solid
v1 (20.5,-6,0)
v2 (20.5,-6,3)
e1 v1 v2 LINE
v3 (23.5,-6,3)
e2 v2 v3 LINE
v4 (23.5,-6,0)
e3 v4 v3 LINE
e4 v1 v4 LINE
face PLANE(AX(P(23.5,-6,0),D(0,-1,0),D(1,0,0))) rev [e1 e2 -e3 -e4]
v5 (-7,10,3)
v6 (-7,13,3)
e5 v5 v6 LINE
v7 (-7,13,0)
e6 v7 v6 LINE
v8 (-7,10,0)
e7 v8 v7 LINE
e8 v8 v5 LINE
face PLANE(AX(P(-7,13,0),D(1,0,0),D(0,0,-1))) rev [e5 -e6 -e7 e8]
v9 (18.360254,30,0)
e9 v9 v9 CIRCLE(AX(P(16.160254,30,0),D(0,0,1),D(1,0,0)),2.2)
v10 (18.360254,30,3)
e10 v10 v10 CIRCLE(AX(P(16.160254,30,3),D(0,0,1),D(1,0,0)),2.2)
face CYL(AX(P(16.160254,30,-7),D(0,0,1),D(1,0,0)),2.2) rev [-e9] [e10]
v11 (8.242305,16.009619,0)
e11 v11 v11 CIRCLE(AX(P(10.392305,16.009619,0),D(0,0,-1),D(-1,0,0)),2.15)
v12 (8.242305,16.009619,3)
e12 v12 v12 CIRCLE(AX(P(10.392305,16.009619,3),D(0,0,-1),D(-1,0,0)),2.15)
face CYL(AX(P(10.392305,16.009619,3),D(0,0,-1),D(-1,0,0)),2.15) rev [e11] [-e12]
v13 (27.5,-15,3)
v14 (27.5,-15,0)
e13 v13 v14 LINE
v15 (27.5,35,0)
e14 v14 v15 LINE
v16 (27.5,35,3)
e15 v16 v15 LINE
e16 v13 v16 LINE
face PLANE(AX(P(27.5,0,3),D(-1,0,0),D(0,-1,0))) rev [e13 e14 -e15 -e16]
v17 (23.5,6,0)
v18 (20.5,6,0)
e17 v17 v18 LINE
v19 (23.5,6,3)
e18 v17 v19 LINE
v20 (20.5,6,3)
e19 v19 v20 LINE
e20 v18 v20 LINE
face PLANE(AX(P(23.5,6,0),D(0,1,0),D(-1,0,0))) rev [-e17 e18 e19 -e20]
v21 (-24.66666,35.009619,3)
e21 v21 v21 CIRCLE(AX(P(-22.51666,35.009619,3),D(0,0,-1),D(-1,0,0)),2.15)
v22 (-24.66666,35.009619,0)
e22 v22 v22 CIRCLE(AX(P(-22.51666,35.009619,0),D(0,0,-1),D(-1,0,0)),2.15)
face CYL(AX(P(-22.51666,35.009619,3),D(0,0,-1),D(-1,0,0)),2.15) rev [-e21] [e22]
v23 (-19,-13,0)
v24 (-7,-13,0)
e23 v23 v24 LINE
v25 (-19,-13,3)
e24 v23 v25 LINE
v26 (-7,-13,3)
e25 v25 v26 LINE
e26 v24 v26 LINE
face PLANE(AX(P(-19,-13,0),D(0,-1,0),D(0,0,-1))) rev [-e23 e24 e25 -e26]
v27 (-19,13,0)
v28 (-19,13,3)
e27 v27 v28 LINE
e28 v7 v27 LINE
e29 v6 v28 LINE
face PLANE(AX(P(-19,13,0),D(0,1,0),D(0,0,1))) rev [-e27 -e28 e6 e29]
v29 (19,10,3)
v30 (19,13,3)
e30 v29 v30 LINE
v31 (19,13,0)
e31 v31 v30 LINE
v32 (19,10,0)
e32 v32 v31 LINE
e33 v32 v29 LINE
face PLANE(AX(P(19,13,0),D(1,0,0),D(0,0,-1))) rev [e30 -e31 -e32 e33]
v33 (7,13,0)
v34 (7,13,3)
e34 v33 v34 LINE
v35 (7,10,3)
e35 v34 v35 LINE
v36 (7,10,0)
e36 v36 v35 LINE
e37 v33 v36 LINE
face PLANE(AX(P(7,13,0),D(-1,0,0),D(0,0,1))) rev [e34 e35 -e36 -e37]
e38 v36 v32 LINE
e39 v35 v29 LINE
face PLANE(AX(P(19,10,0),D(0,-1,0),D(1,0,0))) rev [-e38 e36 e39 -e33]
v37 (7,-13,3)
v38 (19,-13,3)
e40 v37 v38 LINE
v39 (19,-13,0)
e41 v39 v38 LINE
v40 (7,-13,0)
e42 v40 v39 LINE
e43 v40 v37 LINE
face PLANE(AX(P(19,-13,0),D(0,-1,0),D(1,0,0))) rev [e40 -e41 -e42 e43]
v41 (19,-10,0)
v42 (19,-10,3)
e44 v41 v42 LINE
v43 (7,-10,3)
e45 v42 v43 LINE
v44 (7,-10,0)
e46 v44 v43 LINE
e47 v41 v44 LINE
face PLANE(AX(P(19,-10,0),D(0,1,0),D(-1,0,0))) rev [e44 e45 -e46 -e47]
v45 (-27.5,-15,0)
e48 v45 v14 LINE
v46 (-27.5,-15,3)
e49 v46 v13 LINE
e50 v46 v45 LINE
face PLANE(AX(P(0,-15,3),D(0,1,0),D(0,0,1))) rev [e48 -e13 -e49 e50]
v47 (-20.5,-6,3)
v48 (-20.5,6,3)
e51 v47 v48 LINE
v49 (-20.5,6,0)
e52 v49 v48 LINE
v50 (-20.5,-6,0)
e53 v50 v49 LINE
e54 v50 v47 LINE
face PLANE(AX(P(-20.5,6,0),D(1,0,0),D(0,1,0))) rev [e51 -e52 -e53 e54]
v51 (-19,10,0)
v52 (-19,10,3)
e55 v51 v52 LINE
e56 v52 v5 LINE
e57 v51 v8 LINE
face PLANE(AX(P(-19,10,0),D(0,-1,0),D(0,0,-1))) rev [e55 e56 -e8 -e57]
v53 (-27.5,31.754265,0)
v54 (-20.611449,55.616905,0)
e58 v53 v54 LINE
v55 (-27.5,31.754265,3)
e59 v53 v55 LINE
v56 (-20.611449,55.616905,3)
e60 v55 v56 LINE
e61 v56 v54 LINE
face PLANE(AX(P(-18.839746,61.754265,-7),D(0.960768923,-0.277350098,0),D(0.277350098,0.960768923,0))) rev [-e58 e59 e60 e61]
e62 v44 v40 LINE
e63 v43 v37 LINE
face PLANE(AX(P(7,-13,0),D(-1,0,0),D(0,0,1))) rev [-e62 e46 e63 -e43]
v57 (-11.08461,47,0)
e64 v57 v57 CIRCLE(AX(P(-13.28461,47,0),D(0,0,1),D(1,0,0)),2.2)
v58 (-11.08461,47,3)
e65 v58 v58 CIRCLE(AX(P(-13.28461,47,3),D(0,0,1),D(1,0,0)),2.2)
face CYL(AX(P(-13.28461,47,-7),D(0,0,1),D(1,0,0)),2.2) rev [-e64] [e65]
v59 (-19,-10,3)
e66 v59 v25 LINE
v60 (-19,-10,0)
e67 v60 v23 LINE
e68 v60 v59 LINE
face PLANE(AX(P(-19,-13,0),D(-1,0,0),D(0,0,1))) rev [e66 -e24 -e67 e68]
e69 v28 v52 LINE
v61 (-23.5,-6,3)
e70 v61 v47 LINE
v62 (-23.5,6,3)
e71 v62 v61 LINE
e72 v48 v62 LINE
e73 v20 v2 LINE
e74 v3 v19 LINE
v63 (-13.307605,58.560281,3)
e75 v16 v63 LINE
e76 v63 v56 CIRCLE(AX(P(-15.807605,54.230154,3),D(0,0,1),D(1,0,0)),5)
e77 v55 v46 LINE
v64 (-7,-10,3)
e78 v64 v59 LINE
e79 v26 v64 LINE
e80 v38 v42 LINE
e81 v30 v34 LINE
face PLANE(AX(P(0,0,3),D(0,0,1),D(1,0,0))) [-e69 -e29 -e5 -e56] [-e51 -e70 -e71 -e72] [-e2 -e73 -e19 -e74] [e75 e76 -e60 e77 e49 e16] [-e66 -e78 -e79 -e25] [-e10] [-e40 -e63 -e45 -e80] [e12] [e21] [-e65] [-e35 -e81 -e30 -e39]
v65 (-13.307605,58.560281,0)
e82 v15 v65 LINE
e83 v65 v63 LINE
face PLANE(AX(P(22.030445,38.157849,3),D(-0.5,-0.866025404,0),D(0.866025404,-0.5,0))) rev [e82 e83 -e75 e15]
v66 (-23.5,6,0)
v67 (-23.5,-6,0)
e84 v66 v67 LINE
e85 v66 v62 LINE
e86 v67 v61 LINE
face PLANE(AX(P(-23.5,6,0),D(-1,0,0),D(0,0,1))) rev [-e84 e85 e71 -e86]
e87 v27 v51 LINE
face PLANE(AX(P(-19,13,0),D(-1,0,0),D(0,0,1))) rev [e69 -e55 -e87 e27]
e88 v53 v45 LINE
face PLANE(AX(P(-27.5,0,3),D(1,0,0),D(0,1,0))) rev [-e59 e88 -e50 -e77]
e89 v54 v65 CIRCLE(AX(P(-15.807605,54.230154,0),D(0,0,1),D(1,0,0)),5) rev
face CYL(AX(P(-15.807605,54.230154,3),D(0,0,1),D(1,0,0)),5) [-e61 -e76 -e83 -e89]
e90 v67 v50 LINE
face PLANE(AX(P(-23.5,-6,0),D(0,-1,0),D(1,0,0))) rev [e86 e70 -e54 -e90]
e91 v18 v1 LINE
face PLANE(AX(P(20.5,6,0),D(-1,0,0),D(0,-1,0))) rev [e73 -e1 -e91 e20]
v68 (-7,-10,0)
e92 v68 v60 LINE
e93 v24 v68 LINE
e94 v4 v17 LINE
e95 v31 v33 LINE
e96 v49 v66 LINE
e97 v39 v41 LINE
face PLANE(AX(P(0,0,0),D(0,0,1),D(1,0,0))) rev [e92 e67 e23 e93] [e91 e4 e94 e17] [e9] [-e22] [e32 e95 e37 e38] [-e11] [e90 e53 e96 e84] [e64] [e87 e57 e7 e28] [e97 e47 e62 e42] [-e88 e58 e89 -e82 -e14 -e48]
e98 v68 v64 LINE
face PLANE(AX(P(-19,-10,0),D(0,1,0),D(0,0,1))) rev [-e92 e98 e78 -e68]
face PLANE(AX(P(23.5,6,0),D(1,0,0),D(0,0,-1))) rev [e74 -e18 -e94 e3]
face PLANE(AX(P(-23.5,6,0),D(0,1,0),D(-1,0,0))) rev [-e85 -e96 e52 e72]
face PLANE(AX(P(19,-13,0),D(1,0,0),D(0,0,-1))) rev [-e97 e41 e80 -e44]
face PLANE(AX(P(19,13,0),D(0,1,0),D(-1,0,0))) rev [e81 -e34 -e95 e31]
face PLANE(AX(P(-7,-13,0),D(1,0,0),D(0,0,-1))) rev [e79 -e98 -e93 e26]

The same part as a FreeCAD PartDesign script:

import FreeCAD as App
import Part
import Sketcher

V = App.Vector
Q = App.Units.Quantity


def edges_at(feature, points):
    """Names of the edges that pass closest to the given points."""
    edges = feature.Shape.Edges
    near = lambda p: min(range(len(edges)), key=lambda i: edges[i].distToShape(Part.Vertex(*p))[0])
    return sorted({f"Edge{near(p) + 1}" for p in points})


def add_polygon(sketch, points):
    """Adds a closed chain of lines whose ends are joined by coincident constraints."""
    first, n = sketch.GeometryCount, len(points)
    for a, b in zip(points, points[1:] + points[:1]):
        sketch.addGeometry(Part.LineSegment(App.Vector(*a, 0), App.Vector(*b, 0)), False)
    for i in range(n):
        sketch.addConstraint(Sketcher.Constraint("Coincident", first + i, 2, first + (i + 1) % n, 1))

doc = App.newDocument("Part")
body = doc.addObject("PartDesign::Body", "Body")

# Sketch on XY plane
sketch1 = doc.addObject("Sketcher::SketchObject", "Sketch")
body.addObject(sketch1)
sketch1.AttachmentSupport = (doc.XY_Plane, [""])
sketch1.MapMode = "FlatFace"
add_polygon(sketch1, [(28, 35), (-28, 67), (-28, -15), (28, -15)])  # lines 0-3
sketch1.addConstraint([
    Sketcher.Constraint("Vertical", 1),
    Sketcher.Constraint("Horizontal", 2),
    Sketcher.Constraint("Vertical", 3),
    Sketcher.Constraint("DistanceX", 2, 1, 2, 2, 55.0),
    Sketcher.Constraint("DistanceY", 3, 1, 3, 2, 50.0),
    Sketcher.Constraint("Angle", 0, Q("150 deg")),
    Sketcher.Constraint("DistanceY", 1, 2, -1, 1, 15.0),
    Sketcher.Constraint("DistanceX", 0, 2, -1, 1, 27.5),
])
pad1 = doc.addObject("PartDesign::Pad", "Pad")
body.addObject(pad1)
pad1.Profile = sketch1
pad1.Length = 3

# Sketch on XY plane
sketch2 = doc.addObject("Sketcher::SketchObject", "Sketch001")
body.addObject(sketch2)
sketch2.AttachmentSupport = (doc.XY_Plane, [""])
sketch2.MapMode = "FlatFace"
sketch2.AttachmentOffset = App.Placement(V(0, 0, 3), App.Rotation())
add_polygon(sketch2, [(-19, -10), (-19, -13), (-7, -13), (-7, -10)])  # lines 0-3
add_polygon(sketch2, [(7, -10), (7, -13), (19, -13), (19, -10)])  # lines 4-7
add_polygon(sketch2, [(7, 13), (7, 10), (19, 10), (19, 13)])  # lines 8-11
add_polygon(sketch2, [(-19, 13), (-19, 10), (-7, 10), (-7, 13)])  # lines 12-15
add_polygon(sketch2, [(20.5, 6), (20.5, -6), (23.5, -6), (23.5, 6)])  # lines 16-19
add_polygon(sketch2, [(-23.5, 6), (-23.5, -6), (-20.5, -6), (-20.5, 6)])  # lines 20-23
sketch2.addConstraint([
    Sketcher.Constraint("Vertical", 0),
    Sketcher.Constraint("Horizontal", 1),
    Sketcher.Constraint("Vertical", 2),
    Sketcher.Constraint("Horizontal", 3),
    Sketcher.Constraint("Vertical", 4),
    Sketcher.Constraint("Horizontal", 5),
    Sketcher.Constraint("Vertical", 6),
    Sketcher.Constraint("Horizontal", 7),
    Sketcher.Constraint("Vertical", 8),
    Sketcher.Constraint("Horizontal", 9),
    Sketcher.Constraint("Vertical", 10),
    Sketcher.Constraint("Horizontal", 11),
    Sketcher.Constraint("Vertical", 12),
    Sketcher.Constraint("Horizontal", 13),
    Sketcher.Constraint("Vertical", 14),
    Sketcher.Constraint("Horizontal", 15),
    Sketcher.Constraint("Vertical", 16),
    Sketcher.Constraint("Horizontal", 17),
    Sketcher.Constraint("Vertical", 18),
    Sketcher.Constraint("Horizontal", 19),
    Sketcher.Constraint("Vertical", 20),
    Sketcher.Constraint("Horizontal", 21),
    Sketcher.Constraint("Vertical", 22),
    Sketcher.Constraint("Horizontal", 23),
    Sketcher.Constraint("Symmetric", 2, 2, 8, 2, -1, 1),
    Sketcher.Constraint("Symmetric", 0, 2, 10, 2, -1, 1),
    Sketcher.Constraint("Symmetric", 6, 2, 12, 2, -1, 1),
    Sketcher.Constraint("Symmetric", 4, 2, 14, 2, -1, 1),
    Sketcher.Constraint("Symmetric", 18, 2, 20, 2, -1, 1),
    Sketcher.Constraint("Symmetric", 16, 2, 22, 2, -1, 1),
    Sketcher.Constraint("Symmetric", 1, 2, 4, 2, -2),
    Sketcher.Constraint("Symmetric", 3, 2, 6, 2, -2),
    Sketcher.Constraint("Horizontal", 17, 2, 20, 2),
    Sketcher.Constraint("Equal", 23, 0),
    Sketcher.Constraint("Equal", 15, 16),
    Sketcher.Constraint("DistanceX", 1, 1, 1, 2, 12.0),
    Sketcher.Constraint("DistanceX", 17, 1, 17, 2, 3.0),
    Sketcher.Constraint("DistanceX", 0, 2, -1, 1, 19.0),
    Sketcher.Constraint("DistanceY", 0, 2, -1, 1, 13.0),
    Sketcher.Constraint("DistanceX", -1, 1, 16, 2, 20.5),
])
pocket1 = doc.addObject("PartDesign::Pocket", "Pocket")
body.addObject(pocket1)
pocket1.Profile = sketch2
pocket1.Length = 3

# Sketch on XY plane
sketch3 = doc.addObject("Sketcher::SketchObject", "Sketch002")
body.addObject(sketch3)
sketch3.AttachmentSupport = (doc.XY_Plane, [""])
sketch3.MapMode = "FlatFace"
sketch3.AttachmentOffset = App.Placement(V(0, 0, 3), App.Rotation())
sketch3.addGeometry([
    Part.Circle(V(-13.3, 47, 0), V(0, 0, 1), 2.2),
    Part.Circle(V(16.2, 30, 0), V(0, 0, 1), 2.2),
], False)
sketch3.addConstraint([
    Sketcher.Constraint("Equal", 0, 1),
    Sketcher.Constraint("Diameter", 0, 4.4),
    Sketcher.Constraint("DistanceY", -1, 1, 0, 3, 47.0),
    Sketcher.Constraint("DistanceY", -1, 1, 1, 3, 30.0),
    Sketcher.Constraint("DistanceX", 0, 3, -1, 1, 13.28461),
    Sketcher.Constraint("DistanceX", -1, 1, 1, 3, 16.160254),
])
pocket2 = doc.addObject("PartDesign::Pocket", "Pocket001")
body.addObject(pocket2)
pocket2.Profile = sketch3
pocket2.Length = 10

# Sketch on XY plane
sketch4 = doc.addObject("Sketcher::SketchObject", "Sketch003")
body.addObject(sketch4)
sketch4.AttachmentSupport = (doc.XY_Plane, [""])
sketch4.MapMode = "FlatFace"
sketch4.AttachmentOffset = App.Placement(V(0, 0, 3), App.Rotation())
add_polygon(sketch4, [(-28, 32), (-19, 62), (-28, 67)])  # lines 0-2
sketch4.addConstraint([
    Sketcher.Constraint("Vertical", 2),
    Sketcher.Constraint("DistanceY", 2, 2, 2, 1, 35.0),
    Sketcher.Constraint("Angle", 1, Q("150 deg")),
    Sketcher.Constraint("Distance", 1, 10.0),
    Sketcher.Constraint("DistanceX", 1, 2, -1, 1, 27.5),
    Sketcher.Constraint("DistanceY", -1, 1, 0, 2, 61.754265),
])
pocket3 = doc.addObject("PartDesign::Pocket", "Pocket002")
body.addObject(pocket3)
pocket3.Profile = sketch4
pocket3.Length = 10
doc.recompute()

fillet = doc.addObject("PartDesign::Fillet", "Fillet")
body.addObject(fillet)
fillet.Base = (pocket3, edges_at(pocket3, [(-18.84, 61.754, 1.5)]))
fillet.Radius = 5

# Sketch on XY plane
sketch5 = doc.addObject("Sketcher::SketchObject", "Sketch004")
body.addObject(sketch5)
sketch5.AttachmentSupport = (doc.XY_Plane, [""])
sketch5.MapMode = "FlatFace"
sketch5.addGeometry([
    Part.Circle(V(10.4, 16, 0), V(0, 0, 1), 2.1),
    Part.Circle(V(-22.5, 35, 0), V(0, 0, 1), 2.1),
], False)
sketch5.addConstraint([
    Sketcher.Constraint("Equal", 0, 1),
    Sketcher.Constraint("Diameter", 0, 4.3),
    Sketcher.Constraint("DistanceY", 0, 3, 1, 3, 19.0),
    Sketcher.Constraint("DistanceY", -1, 1, 0, 3, 16.009619),
    Sketcher.Constraint("DistanceX", 1, 3, -1, 1, 22.51666),
    Sketcher.Constraint("DistanceX", -1, 1, 0, 3, 10.392305),
])
pocket4 = doc.addObject("PartDesign::Pocket", "Pocket003")
body.addObject(pocket4)
pocket4.Profile = sketch5
pocket4.Length = 3
pocket4.Reversed = True

doc.recompute()
